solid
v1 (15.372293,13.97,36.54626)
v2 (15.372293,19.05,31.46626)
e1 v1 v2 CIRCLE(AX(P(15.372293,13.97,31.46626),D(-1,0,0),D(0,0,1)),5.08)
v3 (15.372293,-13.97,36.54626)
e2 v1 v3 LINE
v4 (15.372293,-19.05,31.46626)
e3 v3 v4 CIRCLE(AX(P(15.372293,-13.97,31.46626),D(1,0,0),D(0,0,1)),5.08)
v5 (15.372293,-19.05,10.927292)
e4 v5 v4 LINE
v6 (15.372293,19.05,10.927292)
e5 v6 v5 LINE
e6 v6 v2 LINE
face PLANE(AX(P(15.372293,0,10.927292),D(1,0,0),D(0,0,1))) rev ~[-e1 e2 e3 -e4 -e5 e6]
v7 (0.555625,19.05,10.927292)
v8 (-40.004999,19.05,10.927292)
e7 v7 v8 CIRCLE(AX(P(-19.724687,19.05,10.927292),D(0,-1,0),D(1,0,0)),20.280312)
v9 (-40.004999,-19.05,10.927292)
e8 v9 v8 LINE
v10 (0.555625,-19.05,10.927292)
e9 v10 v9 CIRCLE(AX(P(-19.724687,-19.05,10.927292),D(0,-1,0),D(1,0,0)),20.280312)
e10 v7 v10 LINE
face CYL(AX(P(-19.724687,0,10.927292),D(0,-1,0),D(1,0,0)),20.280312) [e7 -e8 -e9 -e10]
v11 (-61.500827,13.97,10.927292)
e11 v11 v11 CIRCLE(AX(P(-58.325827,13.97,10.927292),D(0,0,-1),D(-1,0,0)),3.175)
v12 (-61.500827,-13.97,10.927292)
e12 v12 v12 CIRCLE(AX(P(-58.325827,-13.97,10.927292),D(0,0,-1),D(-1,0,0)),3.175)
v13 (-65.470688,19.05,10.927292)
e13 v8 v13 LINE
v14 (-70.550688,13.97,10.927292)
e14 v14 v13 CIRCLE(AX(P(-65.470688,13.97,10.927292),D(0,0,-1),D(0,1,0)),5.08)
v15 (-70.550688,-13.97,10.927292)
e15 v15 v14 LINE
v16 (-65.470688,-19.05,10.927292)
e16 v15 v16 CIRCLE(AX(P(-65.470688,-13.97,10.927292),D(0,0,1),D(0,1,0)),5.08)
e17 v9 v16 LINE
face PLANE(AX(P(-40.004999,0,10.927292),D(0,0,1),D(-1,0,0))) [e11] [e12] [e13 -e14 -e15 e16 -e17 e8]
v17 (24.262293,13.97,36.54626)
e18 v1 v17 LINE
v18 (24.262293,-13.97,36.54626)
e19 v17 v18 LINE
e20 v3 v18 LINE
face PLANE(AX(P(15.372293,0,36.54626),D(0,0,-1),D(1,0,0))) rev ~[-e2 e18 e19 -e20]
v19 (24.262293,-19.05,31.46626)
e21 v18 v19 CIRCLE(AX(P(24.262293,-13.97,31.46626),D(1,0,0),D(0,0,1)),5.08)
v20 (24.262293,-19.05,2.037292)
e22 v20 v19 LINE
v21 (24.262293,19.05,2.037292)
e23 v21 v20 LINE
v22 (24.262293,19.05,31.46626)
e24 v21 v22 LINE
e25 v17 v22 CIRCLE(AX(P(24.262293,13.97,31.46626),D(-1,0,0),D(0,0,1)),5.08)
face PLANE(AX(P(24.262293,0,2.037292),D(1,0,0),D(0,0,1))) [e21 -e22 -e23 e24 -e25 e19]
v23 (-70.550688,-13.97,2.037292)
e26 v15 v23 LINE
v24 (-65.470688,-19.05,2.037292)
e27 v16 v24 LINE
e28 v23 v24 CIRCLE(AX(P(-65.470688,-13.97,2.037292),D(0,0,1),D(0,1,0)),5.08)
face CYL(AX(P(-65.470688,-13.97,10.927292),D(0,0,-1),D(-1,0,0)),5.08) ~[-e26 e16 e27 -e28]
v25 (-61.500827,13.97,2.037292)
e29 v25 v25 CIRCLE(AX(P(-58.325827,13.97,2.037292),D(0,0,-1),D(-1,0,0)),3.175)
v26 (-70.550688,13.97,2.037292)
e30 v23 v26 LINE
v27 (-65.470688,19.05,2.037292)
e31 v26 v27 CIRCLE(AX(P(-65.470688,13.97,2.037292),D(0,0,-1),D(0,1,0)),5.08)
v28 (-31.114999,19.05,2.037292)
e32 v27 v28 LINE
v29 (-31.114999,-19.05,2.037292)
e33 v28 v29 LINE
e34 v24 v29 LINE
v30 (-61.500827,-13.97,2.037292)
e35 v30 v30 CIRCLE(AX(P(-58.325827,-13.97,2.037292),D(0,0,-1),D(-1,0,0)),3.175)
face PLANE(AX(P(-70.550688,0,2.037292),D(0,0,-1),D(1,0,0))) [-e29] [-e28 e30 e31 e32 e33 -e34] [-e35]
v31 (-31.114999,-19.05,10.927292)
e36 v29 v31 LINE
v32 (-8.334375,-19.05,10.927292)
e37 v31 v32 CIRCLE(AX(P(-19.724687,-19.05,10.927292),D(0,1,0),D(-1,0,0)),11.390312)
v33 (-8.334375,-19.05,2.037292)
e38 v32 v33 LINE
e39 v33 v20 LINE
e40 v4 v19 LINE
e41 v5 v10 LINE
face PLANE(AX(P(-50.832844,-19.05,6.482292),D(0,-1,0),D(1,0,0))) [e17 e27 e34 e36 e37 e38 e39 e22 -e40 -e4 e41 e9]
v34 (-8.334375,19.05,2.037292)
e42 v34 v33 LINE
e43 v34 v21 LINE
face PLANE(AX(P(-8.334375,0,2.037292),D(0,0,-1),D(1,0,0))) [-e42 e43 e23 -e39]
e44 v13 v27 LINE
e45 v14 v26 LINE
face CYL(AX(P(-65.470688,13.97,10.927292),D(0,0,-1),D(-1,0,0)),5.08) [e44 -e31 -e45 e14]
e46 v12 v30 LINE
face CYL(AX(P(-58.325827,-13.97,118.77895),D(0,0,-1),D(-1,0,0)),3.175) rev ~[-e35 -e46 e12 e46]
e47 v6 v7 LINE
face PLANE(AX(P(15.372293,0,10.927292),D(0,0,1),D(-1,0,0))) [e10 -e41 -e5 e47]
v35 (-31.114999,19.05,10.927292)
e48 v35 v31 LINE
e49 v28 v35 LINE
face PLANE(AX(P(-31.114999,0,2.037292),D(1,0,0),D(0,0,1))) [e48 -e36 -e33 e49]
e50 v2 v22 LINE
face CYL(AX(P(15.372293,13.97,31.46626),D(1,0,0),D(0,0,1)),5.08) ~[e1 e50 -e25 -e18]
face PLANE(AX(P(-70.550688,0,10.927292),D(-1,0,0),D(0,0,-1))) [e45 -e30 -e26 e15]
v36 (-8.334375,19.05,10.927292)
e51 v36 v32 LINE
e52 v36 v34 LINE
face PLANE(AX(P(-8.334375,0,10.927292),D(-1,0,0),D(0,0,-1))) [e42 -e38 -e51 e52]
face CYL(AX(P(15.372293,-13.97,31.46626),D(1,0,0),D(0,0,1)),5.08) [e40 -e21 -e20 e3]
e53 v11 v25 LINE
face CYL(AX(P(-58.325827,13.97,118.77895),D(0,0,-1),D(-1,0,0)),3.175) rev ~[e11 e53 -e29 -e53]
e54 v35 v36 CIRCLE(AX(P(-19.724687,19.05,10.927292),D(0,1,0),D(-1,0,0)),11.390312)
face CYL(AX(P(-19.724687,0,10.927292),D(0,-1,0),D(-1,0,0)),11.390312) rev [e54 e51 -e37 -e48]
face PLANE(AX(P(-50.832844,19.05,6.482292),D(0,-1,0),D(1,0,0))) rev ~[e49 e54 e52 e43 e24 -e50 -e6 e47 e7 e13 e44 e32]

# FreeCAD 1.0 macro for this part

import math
import FreeCAD as App
import Part
import Sketcher
Q = App.Units.Quantity


def edges_at(feature, points):
    """Names of the edges that pass closest to the given points."""
    edges = feature.Shape.Edges
    near = lambda p: min(range(len(edges)), key=lambda i: edges[i].distToShape(Part.Vertex(*p))[0])
    return sorted({f"Edge{near(p) + 1}" for p in points})

doc = App.newDocument("Part")
body = doc.addObject("PartDesign::Body", "Body")

sketch1 = body.newObject("Sketcher::SketchObject", "Sketch")
sketch1.AttachmentSupport = (doc.getObject("XZ_Plane"), [""])
sketch1.MapMode = "FlatFace"
sketch1.addGeometry([
    Part.LineSegment(App.Vector(-71, 2, 0), App.Vector(-31, 2, 0)),
    Part.LineSegment(App.Vector(-31, 2, 0), App.Vector(-31, 11, 0)),
    Part.ArcOfCircle(Part.Circle(App.Vector(-20, 11, 0), App.Vector(0, 0, 1), 11), math.radians(0), math.radians(180)),
    Part.LineSegment(App.Vector(-8, 11, 0), App.Vector(-8, 2, 0)),
    Part.LineSegment(App.Vector(-8, 2, 0), App.Vector(24, 2, 0)),
    Part.LineSegment(App.Vector(24, 2, 0), App.Vector(24, 37, 0)),
    Part.LineSegment(App.Vector(24, 37, 0), App.Vector(15, 37, 0)),
    Part.LineSegment(App.Vector(15, 37, 0), App.Vector(15, 11, 0)),
    Part.LineSegment(App.Vector(15, 11, 0), App.Vector(1, 11, 0)),
    Part.ArcOfCircle(Part.Circle(App.Vector(-20, 11, 0), App.Vector(0, 0, 1), 20), math.radians(0), math.radians(180)),
    Part.LineSegment(App.Vector(-40, 11, 0), App.Vector(-71, 11, 0)),
    Part.LineSegment(App.Vector(-71, 11, 0), App.Vector(-71, 2, 0)),
], False)
sketch1.addConstraint([
    Sketcher.Constraint("Coincident", 0, 2, 1, 1),
    Sketcher.Constraint("Tangent", 1, 2, 2, 2),
    Sketcher.Constraint("Tangent", 2, 1, 3, 1),
    Sketcher.Constraint("Coincident", 3, 2, 4, 1),
    Sketcher.Constraint("Coincident", 4, 2, 5, 1),
    Sketcher.Constraint("Coincident", 5, 2, 6, 1),
    Sketcher.Constraint("Coincident", 6, 2, 7, 1),
    Sketcher.Constraint("Coincident", 7, 2, 8, 1),
    Sketcher.Constraint("Coincident", 8, 2, 9, 1),
    Sketcher.Constraint("Coincident", 9, 2, 10, 1),
    Sketcher.Constraint("Coincident", 10, 2, 11, 1),
    Sketcher.Constraint("Coincident", 11, 2, 0, 1),
    Sketcher.Constraint("Horizontal", 0),
    Sketcher.Constraint("Vertical", 1),
    Sketcher.Constraint("Vertical", 3),
    Sketcher.Constraint("Horizontal", 4),
    Sketcher.Constraint("Vertical", 5),
    Sketcher.Constraint("Horizontal", 6),
    Sketcher.Constraint("Vertical", 7),
    Sketcher.Constraint("Horizontal", 8),
    Sketcher.Constraint("Horizontal", 10),
    Sketcher.Constraint("Vertical", 11),
    Sketcher.Constraint("Coincident", 9, 3, 2, 3),
    Sketcher.Constraint("Horizontal", 0, 2, 3, 2),
    Sketcher.Constraint("Horizontal", 2, 1, 7, 2),
    Sketcher.Constraint("Horizontal", 8, 2, 9, 2),
    Sketcher.Constraint("Equal", 6, 1),
    Sketcher.Constraint("DistanceX", 6, 2, 6, 1, Q("0.35 in")),
    Sketcher.Constraint("DistanceX", 2, 1, 8, 2, Q("0.35 in")),
    Sketcher.Constraint("DistanceX", 0, 2, -1, 1, Q("1.225 in")),
    Sketcher.Constraint("DistanceX", 2, 1, -1, 1, Q("0.328125 in")),
    Sketcher.Constraint("DistanceX", 0, 1, 0, 2, 39.435689),
    Sketcher.Constraint("DistanceX", 4, 1, 4, 2, 32.596668),
    Sketcher.Constraint("DistanceY", 5, 1, 5, 2, 34.508968),
    Sketcher.Constraint("DistanceY", -1, 1, 0, 2, 2.037292),
])
pad1 = body.newObject("PartDesign::Pad", "Pad")
pad1.Profile = sketch1
pad1.Length = Q("1.5 in")
pad1.Midplane = True
doc.recompute()

fillet = body.newObject("PartDesign::Fillet", "Fillet")
fillet.Base = (pad1, edges_at(pad1, [
    (-70.551, -19.05, 6.482),
    (-70.551, 19.05, 6.482),
    (19.817, -19.05, 36.546),
    (19.817, 19.05, 36.546),
]))
fillet.Radius = Q("0.2 in")

sketch2 = body.newObject("Sketcher::SketchObject", "Sketch001")
sketch2.AttachmentSupport = (doc.getObject("XY_Plane"), [""])
sketch2.MapMode = "FlatFace"
sketch2.AttachmentOffset = App.Placement(App.Vector(0, 0, 10.927292), App.Rotation())
sketch2.addGeometry([
    Part.Circle(App.Vector(-58.3, 14, 0), App.Vector(0, 0, 1), 3.2),
    Part.Circle(App.Vector(-58.3, -14, 0), App.Vector(0, 0, 1), 3.2),
], False)
sketch2.addConstraint([
    Sketcher.Constraint("Equal", 0, 1),
    Sketcher.Constraint("Symmetric", 0, 3, 1, 3, -1),
    Sketcher.Constraint("Diameter", 0, Q("0.25 in")),
    Sketcher.Constraint("DistanceY", 1, 3, 0, 3, Q("1.1 in")),
    Sketcher.Constraint("DistanceX", 0, 3, -1, 1, 58.325827),
])
doc.recompute()
hole = body.newObject("PartDesign::Hole", "Hole")
hole.Profile = sketch2
hole.ThreadType = "None"
hole.Diameter = Q("0.25 in")
hole.DepthType = "ThroughAll"

doc.recompute()
